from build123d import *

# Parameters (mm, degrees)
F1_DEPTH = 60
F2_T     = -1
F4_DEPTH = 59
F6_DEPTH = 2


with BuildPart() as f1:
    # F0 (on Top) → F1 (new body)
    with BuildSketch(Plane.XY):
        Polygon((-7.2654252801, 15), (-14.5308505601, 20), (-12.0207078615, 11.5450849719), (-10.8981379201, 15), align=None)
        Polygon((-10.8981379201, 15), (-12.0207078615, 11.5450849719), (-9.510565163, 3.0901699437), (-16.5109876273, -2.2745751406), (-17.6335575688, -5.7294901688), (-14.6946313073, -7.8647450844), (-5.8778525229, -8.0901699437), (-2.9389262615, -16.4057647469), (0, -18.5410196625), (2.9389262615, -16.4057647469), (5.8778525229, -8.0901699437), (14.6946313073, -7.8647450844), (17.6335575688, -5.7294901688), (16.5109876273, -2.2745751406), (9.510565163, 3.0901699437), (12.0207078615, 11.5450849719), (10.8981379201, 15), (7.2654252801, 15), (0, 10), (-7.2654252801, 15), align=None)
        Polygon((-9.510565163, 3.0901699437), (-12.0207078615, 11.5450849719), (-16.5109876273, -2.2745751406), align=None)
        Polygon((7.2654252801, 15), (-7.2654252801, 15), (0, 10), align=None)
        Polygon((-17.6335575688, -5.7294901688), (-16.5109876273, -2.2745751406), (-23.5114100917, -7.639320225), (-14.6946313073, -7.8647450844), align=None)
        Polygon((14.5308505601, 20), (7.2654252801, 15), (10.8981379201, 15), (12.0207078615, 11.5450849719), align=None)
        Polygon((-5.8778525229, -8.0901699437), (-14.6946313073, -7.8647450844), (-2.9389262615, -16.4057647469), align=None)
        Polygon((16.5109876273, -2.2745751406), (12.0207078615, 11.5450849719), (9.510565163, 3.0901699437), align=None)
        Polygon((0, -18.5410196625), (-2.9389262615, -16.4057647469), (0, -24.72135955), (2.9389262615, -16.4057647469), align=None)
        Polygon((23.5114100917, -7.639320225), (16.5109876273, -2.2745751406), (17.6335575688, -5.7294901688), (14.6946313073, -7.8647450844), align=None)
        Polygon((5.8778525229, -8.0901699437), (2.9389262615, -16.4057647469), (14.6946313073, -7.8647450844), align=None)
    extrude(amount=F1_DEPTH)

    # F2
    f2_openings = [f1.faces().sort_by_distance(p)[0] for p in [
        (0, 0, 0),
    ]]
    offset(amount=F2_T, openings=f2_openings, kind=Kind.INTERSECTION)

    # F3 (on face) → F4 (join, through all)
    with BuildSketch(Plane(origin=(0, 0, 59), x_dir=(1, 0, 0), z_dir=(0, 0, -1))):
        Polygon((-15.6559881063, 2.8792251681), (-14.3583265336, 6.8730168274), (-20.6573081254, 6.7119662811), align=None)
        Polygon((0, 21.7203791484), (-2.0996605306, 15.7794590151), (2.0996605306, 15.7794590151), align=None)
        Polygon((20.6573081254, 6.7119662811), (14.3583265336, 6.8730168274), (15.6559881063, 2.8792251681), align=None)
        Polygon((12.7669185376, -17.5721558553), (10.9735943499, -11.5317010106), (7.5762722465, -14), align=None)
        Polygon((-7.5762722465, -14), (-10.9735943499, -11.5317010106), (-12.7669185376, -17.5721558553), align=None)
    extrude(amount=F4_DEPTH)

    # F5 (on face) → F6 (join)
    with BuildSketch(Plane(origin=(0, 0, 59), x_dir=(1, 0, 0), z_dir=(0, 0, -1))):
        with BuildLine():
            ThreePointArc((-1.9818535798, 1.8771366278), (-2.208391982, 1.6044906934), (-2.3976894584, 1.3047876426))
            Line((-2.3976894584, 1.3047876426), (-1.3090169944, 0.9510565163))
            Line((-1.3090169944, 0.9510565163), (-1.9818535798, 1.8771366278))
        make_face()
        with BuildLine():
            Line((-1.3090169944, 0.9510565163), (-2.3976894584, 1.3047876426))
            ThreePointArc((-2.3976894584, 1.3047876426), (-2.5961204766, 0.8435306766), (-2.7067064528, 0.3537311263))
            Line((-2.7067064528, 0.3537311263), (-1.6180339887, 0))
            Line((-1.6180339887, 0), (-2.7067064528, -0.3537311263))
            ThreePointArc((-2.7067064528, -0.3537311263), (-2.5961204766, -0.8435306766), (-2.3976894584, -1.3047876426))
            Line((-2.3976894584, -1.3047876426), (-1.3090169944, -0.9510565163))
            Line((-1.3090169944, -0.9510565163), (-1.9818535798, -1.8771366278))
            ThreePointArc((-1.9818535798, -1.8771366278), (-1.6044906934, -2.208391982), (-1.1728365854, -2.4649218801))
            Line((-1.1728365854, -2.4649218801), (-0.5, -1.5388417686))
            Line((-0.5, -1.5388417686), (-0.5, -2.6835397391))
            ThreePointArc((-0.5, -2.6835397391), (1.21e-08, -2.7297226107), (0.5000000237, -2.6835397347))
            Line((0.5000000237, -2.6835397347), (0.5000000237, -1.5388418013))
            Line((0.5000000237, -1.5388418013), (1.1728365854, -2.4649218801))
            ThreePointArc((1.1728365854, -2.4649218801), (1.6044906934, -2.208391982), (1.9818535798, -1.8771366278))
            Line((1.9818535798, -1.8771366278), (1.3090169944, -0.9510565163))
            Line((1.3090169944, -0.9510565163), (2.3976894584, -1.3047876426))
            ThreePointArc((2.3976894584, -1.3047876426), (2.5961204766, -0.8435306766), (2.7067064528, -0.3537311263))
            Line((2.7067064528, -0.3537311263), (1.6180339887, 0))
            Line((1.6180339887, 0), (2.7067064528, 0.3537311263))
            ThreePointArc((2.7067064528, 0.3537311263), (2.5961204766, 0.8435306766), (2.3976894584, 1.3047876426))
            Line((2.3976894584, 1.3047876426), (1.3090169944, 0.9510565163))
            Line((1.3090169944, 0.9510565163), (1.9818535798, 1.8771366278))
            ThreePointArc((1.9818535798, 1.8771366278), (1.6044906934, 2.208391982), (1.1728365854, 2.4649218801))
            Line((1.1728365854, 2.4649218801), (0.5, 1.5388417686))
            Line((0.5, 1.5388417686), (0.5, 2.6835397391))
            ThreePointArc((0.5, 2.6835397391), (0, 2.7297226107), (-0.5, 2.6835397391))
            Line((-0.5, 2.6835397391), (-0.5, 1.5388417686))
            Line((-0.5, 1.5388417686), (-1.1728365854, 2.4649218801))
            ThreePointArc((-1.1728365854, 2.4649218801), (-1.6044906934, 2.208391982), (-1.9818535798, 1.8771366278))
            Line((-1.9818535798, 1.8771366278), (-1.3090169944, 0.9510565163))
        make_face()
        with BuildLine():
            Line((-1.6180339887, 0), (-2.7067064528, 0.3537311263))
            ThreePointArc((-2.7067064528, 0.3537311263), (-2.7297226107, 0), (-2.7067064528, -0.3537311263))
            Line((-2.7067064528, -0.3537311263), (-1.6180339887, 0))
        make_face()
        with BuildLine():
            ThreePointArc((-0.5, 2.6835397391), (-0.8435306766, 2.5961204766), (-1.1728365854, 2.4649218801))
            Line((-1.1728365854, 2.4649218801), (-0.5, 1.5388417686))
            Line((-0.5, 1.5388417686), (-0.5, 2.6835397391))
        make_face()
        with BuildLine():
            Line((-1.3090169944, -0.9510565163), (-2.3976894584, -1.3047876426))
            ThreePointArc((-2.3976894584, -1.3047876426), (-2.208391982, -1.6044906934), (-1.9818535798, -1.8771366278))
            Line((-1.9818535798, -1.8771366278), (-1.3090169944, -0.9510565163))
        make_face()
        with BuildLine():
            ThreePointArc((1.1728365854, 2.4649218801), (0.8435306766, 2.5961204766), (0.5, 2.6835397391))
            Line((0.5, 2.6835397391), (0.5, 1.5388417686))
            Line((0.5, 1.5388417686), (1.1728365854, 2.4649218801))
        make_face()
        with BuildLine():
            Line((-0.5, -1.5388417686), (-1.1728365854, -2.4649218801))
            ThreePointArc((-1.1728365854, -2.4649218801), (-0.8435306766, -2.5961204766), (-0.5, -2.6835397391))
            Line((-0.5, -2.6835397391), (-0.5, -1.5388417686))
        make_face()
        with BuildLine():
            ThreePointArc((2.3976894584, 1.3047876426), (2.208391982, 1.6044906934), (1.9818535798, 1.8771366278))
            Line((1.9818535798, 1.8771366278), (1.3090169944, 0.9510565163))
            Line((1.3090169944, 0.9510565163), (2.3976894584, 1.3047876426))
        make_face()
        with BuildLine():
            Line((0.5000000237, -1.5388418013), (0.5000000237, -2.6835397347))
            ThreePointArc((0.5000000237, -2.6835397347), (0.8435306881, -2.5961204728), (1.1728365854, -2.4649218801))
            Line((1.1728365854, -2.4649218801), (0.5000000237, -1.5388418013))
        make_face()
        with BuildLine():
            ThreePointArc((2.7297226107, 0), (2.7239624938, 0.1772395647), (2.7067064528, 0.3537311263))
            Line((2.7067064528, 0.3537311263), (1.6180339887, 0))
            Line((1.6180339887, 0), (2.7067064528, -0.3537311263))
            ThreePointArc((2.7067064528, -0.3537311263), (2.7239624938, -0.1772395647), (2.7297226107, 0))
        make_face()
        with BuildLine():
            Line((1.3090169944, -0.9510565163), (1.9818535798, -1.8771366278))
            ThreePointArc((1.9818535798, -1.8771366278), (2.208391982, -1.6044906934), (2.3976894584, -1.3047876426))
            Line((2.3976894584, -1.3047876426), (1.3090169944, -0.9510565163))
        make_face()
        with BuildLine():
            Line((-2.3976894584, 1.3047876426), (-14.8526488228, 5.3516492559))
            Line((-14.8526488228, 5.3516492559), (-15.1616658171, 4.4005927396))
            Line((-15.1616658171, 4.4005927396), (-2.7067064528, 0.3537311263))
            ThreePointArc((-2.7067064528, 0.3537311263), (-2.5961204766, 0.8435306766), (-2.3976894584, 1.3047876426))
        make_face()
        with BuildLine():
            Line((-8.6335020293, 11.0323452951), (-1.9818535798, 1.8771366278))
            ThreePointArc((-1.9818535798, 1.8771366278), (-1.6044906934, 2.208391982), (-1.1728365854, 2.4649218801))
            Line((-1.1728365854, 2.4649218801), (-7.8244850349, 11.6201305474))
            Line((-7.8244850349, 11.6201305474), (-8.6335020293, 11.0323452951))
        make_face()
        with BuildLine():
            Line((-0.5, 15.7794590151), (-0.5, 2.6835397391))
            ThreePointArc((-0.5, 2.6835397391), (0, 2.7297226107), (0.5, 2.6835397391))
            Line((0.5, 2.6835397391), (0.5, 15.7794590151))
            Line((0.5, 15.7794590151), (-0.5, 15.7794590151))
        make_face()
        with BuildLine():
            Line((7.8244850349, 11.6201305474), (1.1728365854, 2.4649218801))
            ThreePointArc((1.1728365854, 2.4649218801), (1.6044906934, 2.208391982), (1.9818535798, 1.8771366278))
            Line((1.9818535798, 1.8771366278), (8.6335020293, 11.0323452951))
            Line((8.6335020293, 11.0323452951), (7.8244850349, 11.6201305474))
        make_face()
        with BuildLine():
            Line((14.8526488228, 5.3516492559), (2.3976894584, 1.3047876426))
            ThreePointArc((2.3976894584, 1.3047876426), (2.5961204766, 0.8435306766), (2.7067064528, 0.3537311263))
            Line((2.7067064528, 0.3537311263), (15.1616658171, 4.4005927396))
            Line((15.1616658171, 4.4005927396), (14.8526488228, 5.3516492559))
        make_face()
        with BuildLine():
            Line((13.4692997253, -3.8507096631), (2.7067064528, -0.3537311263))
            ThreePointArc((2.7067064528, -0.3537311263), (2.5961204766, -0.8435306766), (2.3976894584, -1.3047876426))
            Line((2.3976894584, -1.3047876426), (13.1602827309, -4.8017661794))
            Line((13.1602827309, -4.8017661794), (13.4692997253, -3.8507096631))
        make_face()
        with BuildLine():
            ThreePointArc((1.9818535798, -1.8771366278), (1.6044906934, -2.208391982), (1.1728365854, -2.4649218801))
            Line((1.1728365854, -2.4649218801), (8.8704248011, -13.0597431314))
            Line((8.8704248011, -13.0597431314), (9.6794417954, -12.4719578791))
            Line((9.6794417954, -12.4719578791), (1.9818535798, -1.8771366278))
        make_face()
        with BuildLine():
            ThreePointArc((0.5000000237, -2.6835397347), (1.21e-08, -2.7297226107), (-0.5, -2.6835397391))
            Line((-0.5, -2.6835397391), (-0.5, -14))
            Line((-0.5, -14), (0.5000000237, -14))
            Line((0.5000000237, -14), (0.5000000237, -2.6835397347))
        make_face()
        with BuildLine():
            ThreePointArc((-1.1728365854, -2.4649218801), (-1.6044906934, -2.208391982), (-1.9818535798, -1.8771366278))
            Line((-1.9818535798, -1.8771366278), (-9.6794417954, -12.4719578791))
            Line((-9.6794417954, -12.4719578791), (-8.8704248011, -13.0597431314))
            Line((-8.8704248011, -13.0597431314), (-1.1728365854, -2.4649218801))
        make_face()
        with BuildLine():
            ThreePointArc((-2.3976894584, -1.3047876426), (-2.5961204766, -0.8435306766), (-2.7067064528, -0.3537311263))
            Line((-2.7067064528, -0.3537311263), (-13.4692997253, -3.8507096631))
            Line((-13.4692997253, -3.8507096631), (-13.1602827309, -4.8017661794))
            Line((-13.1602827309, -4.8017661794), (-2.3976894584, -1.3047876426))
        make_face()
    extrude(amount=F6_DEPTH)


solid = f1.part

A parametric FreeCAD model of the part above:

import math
import FreeCAD as App
import Part
import Sketcher

V = App.Vector
Q = App.Units.Quantity


def faces_at(feature, points):
    """Names of the faces that lie closest to the given points."""
    faces = feature.Shape.Faces
    near = lambda p: min(range(len(faces)), key=lambda i: faces[i].distToShape(Part.Vertex(*p))[0])
    return sorted({f"Face{near(p) + 1}" for p in points})


def add_polygon(sketch, points):
    """Adds a closed chain of lines whose ends are joined by coincident constraints."""
    first, n = sketch.GeometryCount, len(points)
    for a, b in zip(points, points[1:] + points[:1]):
        sketch.addGeometry(Part.LineSegment(App.Vector(*a, 0), App.Vector(*b, 0)), False)
    for i in range(n):
        sketch.addConstraint(Sketcher.Constraint("Coincident", first + i, 2, first + (i + 1) % n, 1))

doc = App.newDocument("Part")
body = doc.addObject("PartDesign::Body", "Body")

# Sketch on XY plane
sketch1 = body.newObject("Sketcher::SketchObject", "Sketch")
sketch1.AttachmentSupport = (doc.getObject("XY_Plane"), [""])
sketch1.MapMode = "FlatFace"
add_polygon(sketch1, [(-7, 15), (-15, 20), (-12, 12), (-17, -2), (-24, -8), (-15, -8), (-3, -16), (0, -25), (3, -16), (15, -8), (24, -8), (17, -2), (12, 12), (15, 20), (7, 15)])  # lines 0-14
sketch1.addConstraint([
    Sketcher.Constraint("Horizontal", 14),
    Sketcher.Constraint("Symmetric", 5, 2, 7, 2, -2),
    Sketcher.Constraint("Symmetric", 4, 2, 8, 2, -2),
    Sketcher.Constraint("Symmetric", 3, 2, 9, 2, -2),
    Sketcher.Constraint("Symmetric", 2, 2, 10, 2, -2),
    Sketcher.Constraint("Symmetric", 1, 2, 11, 2, -2),
    Sketcher.Constraint("Symmetric", 0, 2, 12, 2, -2),
    Sketcher.Constraint("PointOnObject", 6, 2, -2),
    Sketcher.Constraint("Equal", 0, 1),
    Sketcher.Constraint("Equal", 1, 3),
    Sketcher.Constraint("Equal", 3, 4),
    Sketcher.Constraint("Equal", 2, 5),
    Sketcher.Constraint("Equal", 4, 6),
    Sketcher.Constraint("Equal", 12, 13),
    Sketcher.Constraint("Angle", 2, Q("-108 deg")),
    Sketcher.Constraint("Angle", 5, Q("-36 deg")),
    Sketcher.Constraint("DistanceY", -1, 1, 0, 2, 20.0),
    Sketcher.Constraint("DistanceY", -1, 1, 13, 2, 15.0),
    Sketcher.Constraint("DistanceX", 14, 2, 14, 1, 14.530851),
    Sketcher.Constraint("DistanceX", 0, 2, 12, 2, 29.061701),
    Sketcher.Constraint("Distance", 2, 14.530851),
    Sketcher.Constraint("DistanceX", 3, 2, -1, 1, 23.51141),
    Sketcher.Constraint("DistanceY", 3, 2, -1, 1, 7.63932),
    Sketcher.Constraint("DistanceX", 4, 2, -1, 1, 14.694631),
])
pad1 = body.newObject("PartDesign::Pad", "Pad")
pad1.Profile = sketch1
pad1.Length = 60
doc.recompute()

thickness = body.newObject("PartDesign::Thickness", "Thickness")
thickness.Base = (pad1, faces_at(pad1, [(0, -2.361, 0)]))
thickness.Value = 1
thickness.Reversed = True
thickness.Join = "Intersection"

# Sketch on XY plane
sketch2 = body.newObject("Sketcher::SketchObject", "Sketch001")
sketch2.AttachmentSupport = (doc.getObject("XY_Plane"), [""])
sketch2.MapMode = "FlatFace"
sketch2.AttachmentOffset = App.Placement(V(0, 0, 59), App.Rotation())
add_polygon(sketch2, [(-15.7, -2.9), (-14.4, -6.9), (-20.7, -6.7)])  # lines 0-2
add_polygon(sketch2, [(0, -21.7), (-2.1, -15.8), (2.1, -15.8)])  # lines 3-5
add_polygon(sketch2, [(20.7, -6.7), (14.4, -6.9), (15.7, -2.9)])  # lines 6-8
add_polygon(sketch2, [(12.8, 17.6), (11, 11.5), (7.6, 14)])  # lines 9-11
add_polygon(sketch2, [(-7.6, 14), (-11, 11.5), (-12.8, 17.6)])  # lines 12-14
sketch2.addConstraint([
    Sketcher.Constraint("Horizontal", 4),
    Sketcher.Constraint("Symmetric", 0, 2, 6, 2, -2),
    Sketcher.Constraint("Symmetric", 2, 2, 7, 2, -2),
    Sketcher.Constraint("Symmetric", 1, 2, 8, 2, -2),
    Sketcher.Constraint("Symmetric", 9, 2, 12, 2, -2),
    Sketcher.Constraint("Symmetric", 11, 2, 13, 2, -2),
    Sketcher.Constraint("Symmetric", 10, 2, 14, 2, -2),
    Sketcher.Constraint("PointOnObject", 5, 2, -2),
    Sketcher.Constraint("Equal", 1, 2),
    Sketcher.Constraint("Equal", 2, 3),
    Sketcher.Constraint("Equal", 3, 5),
    Sketcher.Constraint("Equal", 8, 9),
    Sketcher.Constraint("Equal", 7, 10),
    Sketcher.Constraint("Equal", 9, 11),
    Sketcher.Constraint("Angle", 0, Q("-72 deg")),
    Sketcher.Constraint("Angle", 10, Q("144 deg")),
    Sketcher.Constraint("DistanceY", -1, 1, 10, 2, 14.0),
    Sketcher.Constraint("DistanceX", 4, 1, 4, 2, 4.199321),
    Sketcher.Constraint("DistanceY", -1, 1, 9, 2, 11.531701),
    Sketcher.Constraint("Distance", 1, 6.30104),
    Sketcher.Constraint("DistanceX", 1, 2, -1, 1, 20.657308),
    Sketcher.Constraint("DistanceY", 3, 2, -1, 1, 15.779459),
    Sketcher.Constraint("DistanceX", -1, 1, 11, 2, 12.766919),
    Sketcher.Constraint("DistanceY", 7, 2, 11, 2, 20.451381),
])
pad2 = body.newObject("PartDesign::Pad", "Pad001")
pad2.Profile = sketch2
pad2.Length = 59
pad2.Reversed = True

# Sketch on XY plane
sketch3 = body.newObject("Sketcher::SketchObject", "Sketch002")
sketch3.AttachmentSupport = (doc.getObject("XY_Plane"), [""])
sketch3.MapMode = "FlatFace"
sketch3.AttachmentOffset = App.Placement(V(0, 0, 59), App.Rotation())
sketch3.addGeometry([
    Part.ArcOfCircle(Part.Circle(V(0, 0, 0), V(0, 0, 1), 2.73), math.radians(-151.45), math.radians(-136.55)),  # 0
    Part.LineSegment(V(-2.4, -1.3, 0), V(-14.85, -5.35, 0)),  # 1
    Part.LineSegment(V(-14.85, -5.35, 0), V(-15.16, -4.4, 0)),  # 2
    Part.LineSegment(V(-15.16, -4.4, 0), V(-2.71, -0.35, 0)),  # 3
    Part.ArcOfCircle(Part.Circle(V(0, 0, 0), V(0, 0, 1), 2.73), math.radians(172.55), math.radians(187.45)),  # 4
    Part.LineSegment(V(-2.71, 0.35, 0), V(-13.47, 3.85, 0)),  # 5
    Part.LineSegment(V(-13.47, 3.85, 0), V(-13.16, 4.8, 0)),  # 6
    Part.LineSegment(V(-13.16, 4.8, 0), V(-2.4, 1.3, 0)),  # 7
    Part.ArcOfCircle(Part.Circle(V(0, 0, 0), V(0, 0, 1), 2.73), math.radians(136.55), math.radians(151.45)),  # 8
    Part.LineSegment(V(-1.98, 1.88, 0), V(-9.68, 12.47, 0)),  # 9
    Part.LineSegment(V(-9.68, 12.47, 0), V(-8.87, 13.06, 0)),  # 10
    Part.LineSegment(V(-8.87, 13.06, 0), V(-1.17, 2.46, 0)),  # 11
    Part.ArcOfCircle(Part.Circle(V(0, 0, 0), V(0, 0, 1), 2.73), math.radians(100.55), math.radians(115.45)),  # 12
    Part.LineSegment(V(-0.5, 2.68, 0), V(-0.5, 14, 0)),  # 13
    Part.LineSegment(V(-0.5, 14, 0), V(0.5, 14, 0)),  # 14
    Part.LineSegment(V(0.5, 14, 0), V(0.5, 2.68, 0)),  # 15
    Part.ArcOfCircle(Part.Circle(V(0, 0, 0), V(0, 0, 1), 2.73), math.radians(64.55), math.radians(79.45)),  # 16
    Part.LineSegment(V(1.17, 2.46, 0), V(8.87, 13.06, 0)),  # 17
    Part.LineSegment(V(8.87, 13.06, 0), V(9.68, 12.47, 0)),  # 18
    Part.LineSegment(V(9.68, 12.47, 0), V(1.98, 1.88, 0)),  # 19
    Part.ArcOfCircle(Part.Circle(V(0, 0, 0), V(0, 0, 1), 2.73), math.radians(28.55), math.radians(43.45)),  # 20
    Part.LineSegment(V(2.4, 1.3, 0), V(13.16, 4.8, 0)),  # 21
    Part.LineSegment(V(13.16, 4.8, 0), V(13.47, 3.85, 0)),  # 22
    Part.LineSegment(V(13.47, 3.85, 0), V(2.71, 0.35, 0)),  # 23
    Part.ArcOfCircle(Part.Circle(V(0, 0, 0), V(0, 0, 1), 2.73), math.radians(0), math.radians(7.45)),  # 24
    Part.ArcOfCircle(Part.Circle(V(0, 0, 0), V(0, 0, 1), 2.73), math.radians(-7.45), math.radians(0)),  # 25
    Part.LineSegment(V(2.71, -0.35, 0), V(15.16, -4.4, 0)),  # 26
    Part.LineSegment(V(15.16, -4.4, 0), V(14.85, -5.35, 0)),  # 27
    Part.LineSegment(V(14.85, -5.35, 0), V(2.4, -1.3, 0)),  # 28
    Part.ArcOfCircle(Part.Circle(V(0, 0, 0), V(0, 0, 1), 2.73), math.radians(-43.45), math.radians(-28.55)),  # 29
    Part.LineSegment(V(1.98, -1.88, 0), V(8.63, -11.03, 0)),  # 30
    Part.LineSegment(V(8.63, -11.03, 0), V(7.82, -11.62, 0)),  # 31
    Part.LineSegment(V(7.82, -11.62, 0), V(1.17, -2.46, 0)),  # 32
    Part.ArcOfCircle(Part.Circle(V(0, 0, 0), V(0, 0, 1), 2.73), math.radians(-79.45), math.radians(-64.55)),  # 33
    Part.LineSegment(V(0.5, -2.68, 0), V(0.5, -15.78, 0)),  # 34
    Part.LineSegment(V(0.5, -15.78, 0), V(-0.5, -15.78, 0)),  # 35
    Part.LineSegment(V(-0.5, -15.78, 0), V(-0.5, -2.68, 0)),  # 36
    Part.ArcOfCircle(Part.Circle(V(0, 0, 0), V(0, 0, 1), 2.73), math.radians(-115.45), math.radians(-100.55)),  # 37
    Part.LineSegment(V(-1.17, -2.46, 0), V(-7.82, -11.62, 0)),  # 38
    Part.LineSegment(V(-7.82, -11.62, 0), V(-8.63, -11.03, 0)),  # 39
    Part.LineSegment(V(-8.63, -11.03, 0), V(-1.98, -1.88, 0)),  # 40
], False)
sketch3.addConstraint([
    Sketcher.Constraint("Coincident", 0, 1, 1, 1),
    Sketcher.Constraint("Coincident", 1, 2, 2, 1),
    Sketcher.Constraint("Coincident", 2, 2, 3, 1),
    Sketcher.Constraint("Coincident", 3, 2, 4, 2),
    Sketcher.Constraint("Coincident", 4, 1, 5, 1),
    Sketcher.Constraint("Coincident", 5, 2, 6, 1),
    Sketcher.Constraint("Coincident", 6, 2, 7, 1),
    Sketcher.Constraint("Coincident", 7, 2, 8, 2),
    Sketcher.Constraint("Coincident", 8, 1, 9, 1),
    Sketcher.Constraint("Coincident", 9, 2, 10, 1),
    Sketcher.Constraint("Coincident", 10, 2, 11, 1),
    Sketcher.Constraint("Coincident", 11, 2, 12, 2),
    Sketcher.Constraint("Coincident", 12, 1, 13, 1),
    Sketcher.Constraint("Coincident", 13, 2, 14, 1),
    Sketcher.Constraint("Coincident", 14, 2, 15, 1),
    Sketcher.Constraint("Coincident", 15, 2, 16, 2),
    Sketcher.Constraint("Coincident", 16, 1, 17, 1),
    Sketcher.Constraint("Coincident", 17, 2, 18, 1),
    Sketcher.Constraint("Coincident", 18, 2, 19, 1),
    Sketcher.Constraint("Coincident", 19, 2, 20, 2),
    Sketcher.Constraint("Coincident", 20, 1, 21, 1),
    Sketcher.Constraint("Coincident", 21, 2, 22, 1),
    Sketcher.Constraint("Coincident", 22, 2, 23, 1),
    Sketcher.Constraint("Coincident", 23, 2, 24, 2),
    Sketcher.Constraint("Tangent", 24, 1, 25, 2),
    Sketcher.Constraint("Coincident", 25, 1, 26, 1),
    Sketcher.Constraint("Coincident", 26, 2, 27, 1),
    Sketcher.Constraint("Coincident", 27, 2, 28, 1),
    Sketcher.Constraint("Coincident", 28, 2, 29, 2),
    Sketcher.Constraint("Coincident", 29, 1, 30, 1),
    Sketcher.Constraint("Coincident", 30, 2, 31, 1),
    Sketcher.Constraint("Coincident", 31, 2, 32, 1),
    Sketcher.Constraint("Coincident", 32, 2, 33, 2),
    Sketcher.Constraint("Coincident", 33, 1, 34, 1),
    Sketcher.Constraint("Coincident", 34, 2, 35, 1),
    Sketcher.Constraint("Coincident", 35, 2, 36, 1),
    Sketcher.Constraint("Coincident", 36, 2, 37, 2),
    Sketcher.Constraint("Coincident", 37, 1, 38, 1),
    Sketcher.Constraint("Coincident", 38, 2, 39, 1),
    Sketcher.Constraint("Coincident", 39, 2, 40, 1),
    Sketcher.Constraint("Coincident", 40, 2, 0, 2),
    Sketcher.Constraint("Vertical", 13),
    Sketcher.Constraint("Horizontal", 14),
    Sketcher.Constraint("Vertical", 15),
    Sketcher.Constraint("Vertical", 34),
    Sketcher.Constraint("Horizontal", 35),
    Sketcher.Constraint("Vertical", 36),
    Sketcher.Constraint("Coincident", 0, 3, -1, 1),
    Sketcher.Constraint("Coincident", 4, 3, -1, 1),
    Sketcher.Constraint("Coincident", 8, 3, -1, 1),
    Sketcher.Constraint("Coincident", 12, 3, -1, 1),
    Sketcher.Constraint("Coincident", 16, 3, -1, 1),
    Sketcher.Constraint("Coincident", 20, 3, -1, 1),
    Sketcher.Constraint("Coincident", 24, 3, -1, 1),
    Sketcher.Constraint("Coincident", 29, 3, -1, 1),
    Sketcher.Constraint("Coincident", 33, 3, -1, 1),
    Sketcher.Constraint("Coincident", 37, 3, -1, 1),
    Sketcher.Constraint("Equal", 0, 4),
    Sketcher.Constraint("Equal", 4, 8),
    Sketcher.Constraint("Equal", 8, 12),
    Sketcher.Constraint("Equal", 12, 16),
    Sketcher.Constraint("Equal", 16, 20),
    Sketcher.Constraint("Equal", 20, 24),
    Sketcher.Constraint("Equal", 24, 25),
    Sketcher.Constraint("Equal", 25, 29),
    Sketcher.Constraint("Equal", 29, 33),
    Sketcher.Constraint("Equal", 33, 37),
    Sketcher.Constraint("Symmetric", 10, 2, 17, 2, -2),
    Sketcher.Constraint("Symmetric", 9, 2, 18, 2, -2),
    Sketcher.Constraint("Symmetric", 6, 2, 21, 2, -2),
    Sketcher.Constraint("Symmetric", 5, 2, 22, 2, -2),
    Sketcher.Constraint("Symmetric", 2, 2, 26, 2, -2),
    Sketcher.Constraint("Symmetric", 1, 2, 27, 2, -2),
    Sketcher.Constraint("Symmetric", 31, 2, 38, 2, -2),
    Sketcher.Constraint("Symmetric", 30, 2, 39, 2, -2),
    Sketcher.Constraint("PointOnObject", 24, 1, -1),
    Sketcher.Constraint("Perpendicular", 1, 2),
    Sketcher.Constraint("Perpendicular", 2, 3),
    Sketcher.Constraint("Perpendicular", 5, 6),
    Sketcher.Constraint("Perpendicular", 6, 7),
    Sketcher.Constraint("Perpendicular", 9, 10),
    Sketcher.Constraint("Perpendicular", 10, 11),
    Sketcher.Constraint("Perpendicular", 17, 18),
    Sketcher.Constraint("Perpendicular", 18, 19),
    Sketcher.Constraint("Parallel", 3, 21),
    Sketcher.Constraint("Perpendicular", 21, 22),
    Sketcher.Constraint("Perpendicular", 22, 23),
    Sketcher.Constraint("Parallel", 7, 26),
    Sketcher.Constraint("Perpendicular", 27, 28),
    Sketcher.Constraint("Parallel", 11, 30),
    Sketcher.Constraint("Perpendicular", 30, 31),
    Sketcher.Constraint("Perpendicular", 31, 32),
    Sketcher.Constraint("Parallel", 19, 38),
    Sketcher.Constraint("Perpendicular", 39, 40),
    Sketcher.Constraint("Horizontal", 12, 1, 15, 2),
    Sketcher.Constraint("Horizontal", 33, 1, 36, 2),
    Sketcher.Constraint("Vertical", 3, 2, 4, 1),
    Sketcher.Constraint("Vertical", 0, 1, 7, 2),
    Sketcher.Constraint("Vertical", 19, 2, 29, 1),
    Sketcher.Constraint("Vertical", 16, 1, 32, 2),
    Sketcher.Constraint("Vertical", 15, 2, 33, 1),
    Sketcher.Constraint("Equal", 1, 3),
    Sketcher.Constraint("Equal", 3, 9),
    Sketcher.Constraint("Equal", 6, 10),
    Sketcher.Constraint("Equal", 9, 11),
    Sketcher.Constraint("Equal", 23, 30),
    Sketcher.Constraint("DistanceX", 14, 1, 14, 2, 1.0),
    Sketcher.Constraint("Angle", 1, Q("-162 deg")),
    Sketcher.Constraint("Angle", 9, Q("126 deg")),
    Sketcher.Constraint("Distance", 2, 1.0),
    Sketcher.Constraint("DistanceY", -1, 1, 13, 2, 14.0),
    Sketcher.Constraint("Radius", 0, 2.729723),
    Sketcher.Constraint("DistanceY", 34, 2, 34, 1, 13.095919),
    Sketcher.Constraint("DistanceX", 5, 2, -1, 1, 13.4693),
    Sketcher.Constraint("Distance", 1, 13.095919),
])
pad3 = body.newObject("PartDesign::Pad", "Pad002")
pad3.Profile = sketch3
pad3.Length = 2
pad3.Reversed = True

doc.recompute()
